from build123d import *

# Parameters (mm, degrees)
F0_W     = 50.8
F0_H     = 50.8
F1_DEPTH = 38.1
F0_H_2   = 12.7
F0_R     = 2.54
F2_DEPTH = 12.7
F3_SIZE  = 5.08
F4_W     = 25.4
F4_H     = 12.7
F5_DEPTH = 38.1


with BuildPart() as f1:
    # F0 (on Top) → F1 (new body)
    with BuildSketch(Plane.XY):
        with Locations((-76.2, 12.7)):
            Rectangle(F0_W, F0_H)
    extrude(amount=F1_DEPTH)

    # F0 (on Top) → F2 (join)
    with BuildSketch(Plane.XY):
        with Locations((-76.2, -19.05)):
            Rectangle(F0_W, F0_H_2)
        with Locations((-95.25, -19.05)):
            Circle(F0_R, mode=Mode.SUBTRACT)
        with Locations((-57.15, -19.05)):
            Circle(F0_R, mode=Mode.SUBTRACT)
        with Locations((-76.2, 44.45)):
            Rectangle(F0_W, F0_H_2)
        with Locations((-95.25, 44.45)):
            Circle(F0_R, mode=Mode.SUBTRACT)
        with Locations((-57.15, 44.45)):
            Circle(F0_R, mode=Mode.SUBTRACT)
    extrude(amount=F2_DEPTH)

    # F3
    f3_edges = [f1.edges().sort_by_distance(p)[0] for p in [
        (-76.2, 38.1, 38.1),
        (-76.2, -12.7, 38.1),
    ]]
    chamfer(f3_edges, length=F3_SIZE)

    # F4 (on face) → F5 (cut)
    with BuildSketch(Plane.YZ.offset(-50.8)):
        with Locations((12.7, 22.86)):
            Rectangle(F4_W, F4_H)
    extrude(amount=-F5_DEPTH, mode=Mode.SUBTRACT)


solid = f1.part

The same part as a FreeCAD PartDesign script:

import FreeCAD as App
import Part
import Sketcher
from FreeCAD import Vector
Q = App.Units.Quantity


def edges_at(feature, points):
    """Names of the edges that pass closest to the given points."""
    edges = feature.Shape.Edges
    near = lambda p: min(range(len(edges)), key=lambda i: edges[i].distToShape(Part.Vertex(*p))[0])
    return sorted({f"Edge{near(p) + 1}" for p in points})


def add_polygon(sketch, points):
    """Adds a closed chain of lines whose ends are joined by coincident constraints."""
    first, n = sketch.GeometryCount, len(points)
    for a, b in zip(points, points[1:] + points[:1]):
        sketch.addGeometry(Part.LineSegment(App.Vector(*a, 0), App.Vector(*b, 0)), False)
    for i in range(n):
        sketch.addConstraint(Sketcher.Constraint("Coincident", first + i, 2, first + (i + 1) % n, 1))

doc = App.newDocument("Part")
body = doc.addObject("PartDesign::Body", "Body")

sketch1 = body.newObject("Sketcher::SketchObject", "Sketch")
sketch1.AttachmentSupport = (doc.getObject("XY_Plane"), [""])
sketch1.MapMode = "FlatFace"
add_polygon(sketch1, [(-102, 38), (-102, -13), (-51, -13), (-51, 38)])
sketch1.addConstraint(Sketcher.Constraint("Vertical", 0))
sketch1.addConstraint(Sketcher.Constraint("Horizontal", 1))
sketch1.addConstraint(Sketcher.Constraint("Vertical", 2))
sketch1.addConstraint(Sketcher.Constraint("Horizontal", 3))
sketch1.addConstraint(Sketcher.Constraint("Equal", 3, 0))
sketch1.addConstraint(Sketcher.Constraint("DistanceX", 1, 1, 1, 2, Q("2 in")))
sketch1.addConstraint(Sketcher.Constraint("DistanceX", 0, 2, -1, 1, Q("4 in")))
sketch1.addConstraint(Sketcher.Constraint("DistanceY", 0, 2, -1, 1, Q("0.5 in")))
pad1 = body.newObject("PartDesign::Pad", "Pad")
pad1.Profile = sketch1
pad1.Length = Q("1.5 in")

sketch2 = body.newObject("Sketcher::SketchObject", "Sketch001")
sketch2.AttachmentSupport = (doc.getObject("XY_Plane"), [""])
sketch2.MapMode = "FlatFace"
add_polygon(sketch2, [(-101.6, -12.7), (-101.6, -25.4), (-50.8, -25.4), (-50.8, -12.7)])
sketch2.addGeometry(Part.Circle(Vector(-95.2, -19.1, 0), Vector(0, 0, 1), 2.5), False)
sketch2.addGeometry(Part.Circle(Vector(-57.1, -19.1, 0), Vector(0, 0, 1), 2.5), False)
add_polygon(sketch2, [(-101.6, 50.8), (-101.6, 38.1), (-50.8, 38.1), (-50.8, 50.8)])
sketch2.addGeometry(Part.Circle(Vector(-95.2, 44.5, 0), Vector(0, 0, 1), 2.5), False)
sketch2.addGeometry(Part.Circle(Vector(-57.1, 44.5, 0), Vector(0, 0, 1), 2.5), False)
sketch2.addConstraint(Sketcher.Constraint("Vertical", 0))
sketch2.addConstraint(Sketcher.Constraint("Horizontal", 1))
sketch2.addConstraint(Sketcher.Constraint("Vertical", 2))
sketch2.addConstraint(Sketcher.Constraint("Horizontal", 3))
sketch2.addConstraint(Sketcher.Constraint("Vertical", 6))
sketch2.addConstraint(Sketcher.Constraint("Horizontal", 7))
sketch2.addConstraint(Sketcher.Constraint("Vertical", 8))
sketch2.addConstraint(Sketcher.Constraint("Horizontal", 9))
sketch2.addConstraint(Sketcher.Constraint("Equal", 4, 5))
sketch2.addConstraint(Sketcher.Constraint("Equal", 5, 10))
sketch2.addConstraint(Sketcher.Constraint("Equal", 10, 11))
sketch2.addConstraint(Sketcher.Constraint("Horizontal", 4, 3, 5, 3))
sketch2.addConstraint(Sketcher.Constraint("Horizontal", 10, 3, 11, 3))
sketch2.addConstraint(Sketcher.Constraint("Vertical", 4, 3, 10, 3))
sketch2.addConstraint(Sketcher.Constraint("Vertical", 5, 3, 11, 3))
sketch2.addConstraint(Sketcher.Constraint("Vertical", 3, 2, 6, 2))
sketch2.addConstraint(Sketcher.Constraint("Vertical", 2, 2, 7, 2))
sketch2.addConstraint(Sketcher.Constraint("Equal", 2, 6))
sketch2.addConstraint(Sketcher.Constraint("Diameter", 4, Q("0.2 in")))
sketch2.addConstraint(Sketcher.Constraint("DistanceX", 1, 1, 1, 2, Q("2 in")))
sketch2.addConstraint(Sketcher.Constraint("DistanceY", 0, 2, 0, 1, Q("0.5 in")))
sketch2.addConstraint(Sketcher.Constraint("DistanceX", 0, 2, -1, 1, Q("4 in")))
sketch2.addConstraint(Sketcher.Constraint("DistanceY", 0, 2, -1, 1, Q("1 in")))
sketch2.addConstraint(Sketcher.Constraint("DistanceY", -1, 1, 8, 2, Q("2 in")))
sketch2.addConstraint(Sketcher.Constraint("DistanceX", 4, 3, 5, 3, Q("1.5 in")))
sketch2.addConstraint(Sketcher.Constraint("DistanceY", 4, 3, 10, 3, Q("2.5 in")))
sketch2.addConstraint(Sketcher.Constraint("DistanceX", 4, 3, -1, 1, Q("3.75 in")))
sketch2.addConstraint(Sketcher.Constraint("DistanceY", 4, 3, -1, 1, Q("0.75 in")))
pad2 = body.newObject("PartDesign::Pad", "Pad001")
pad2.Profile = sketch2
pad2.Length = Q("0.5 in")
doc.recompute()

chamfer = body.newObject("PartDesign::Chamfer", "Chamfer")
chamfer.Base = (pad2, edges_at(pad2, [(-76.2, 38.1, 38.1), (-76.2, -12.7, 38.1)]))
chamfer.Size = Q("0.2 in")

sketch3 = body.newObject("Sketcher::SketchObject", "Sketch002")
sketch3.AttachmentSupport = (doc.getObject("YZ_Plane"), [""])
sketch3.MapMode = "FlatFace"
sketch3.AttachmentOffset = App.Placement(Vector(0, 0, -2 * 25.4), App.Rotation())
add_polygon(sketch3, [(0, 29), (0, 17), (25, 17), (25, 29)])
sketch3.addConstraint(Sketcher.Constraint("Vertical", 0))
sketch3.addConstraint(Sketcher.Constraint("Horizontal", 1))
sketch3.addConstraint(Sketcher.Constraint("Vertical", 2))
sketch3.addConstraint(Sketcher.Constraint("Horizontal", 3))
sketch3.addConstraint(Sketcher.Constraint("PointOnObject", 0, 2, -2))
sketch3.addConstraint(Sketcher.Constraint("DistanceX", 1, 1, 1, 2, Q("1 in")))
sketch3.addConstraint(Sketcher.Constraint("DistanceY", 0, 2, 0, 1, Q("0.5 in")))
sketch3.addConstraint(Sketcher.Constraint("DistanceY", -1, 1, 0, 2, Q("0.65 in")))
pocket1 = body.newObject("PartDesign::Pocket", "Pocket")
pocket1.Profile = sketch3
pocket1.Length = Q("1.5 in")

doc.recompute()
